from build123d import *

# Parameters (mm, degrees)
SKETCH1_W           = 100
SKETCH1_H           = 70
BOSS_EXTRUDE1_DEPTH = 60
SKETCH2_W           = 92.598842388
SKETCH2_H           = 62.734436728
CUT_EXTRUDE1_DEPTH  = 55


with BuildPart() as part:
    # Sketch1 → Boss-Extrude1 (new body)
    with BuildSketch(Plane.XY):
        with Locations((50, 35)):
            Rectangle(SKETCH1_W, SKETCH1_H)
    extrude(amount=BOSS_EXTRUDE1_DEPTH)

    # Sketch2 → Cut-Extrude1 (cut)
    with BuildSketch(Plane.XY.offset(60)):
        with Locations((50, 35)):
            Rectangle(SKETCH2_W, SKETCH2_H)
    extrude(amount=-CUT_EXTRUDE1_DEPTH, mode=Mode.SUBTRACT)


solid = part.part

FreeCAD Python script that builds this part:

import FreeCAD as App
import Part
import Sketcher

V = App.Vector


def add_polygon(sketch, points):
    """Adds a closed chain of lines whose ends are joined by coincident constraints."""
    first, n = sketch.GeometryCount, len(points)
    for a, b in zip(points, points[1:] + points[:1]):
        sketch.addGeometry(Part.LineSegment(App.Vector(*a, 0), App.Vector(*b, 0)), False)
    for i in range(n):
        sketch.addConstraint(Sketcher.Constraint("Coincident", first + i, 2, first + (i + 1) % n, 1))

doc = App.newDocument("Part")
body = doc.addObject("PartDesign::Body", "Body")

sketch1 = body.newObject("Sketcher::SketchObject", "Sketch")
sketch1.AttachmentSupport = (doc.getObject("XY_Plane"), [""])
sketch1.MapMode = "FlatFace"
add_polygon(sketch1, [(0, 70), (0, 0), (100, 0), (100, 70)])
sketch1.addConstraint([
    Sketcher.Constraint("Vertical", 0),
    Sketcher.Constraint("Horizontal", 1),
    Sketcher.Constraint("Vertical", 2),
    Sketcher.Constraint("Horizontal", 3),
    Sketcher.Constraint("Coincident", 0, 2, -1, 1),
    Sketcher.Constraint("DistanceX", 1, 1, 1, 2, 100.0),
    Sketcher.Constraint("DistanceY", 0, 2, 0, 1, 70.0),
])
pad1 = body.newObject("PartDesign::Pad", "Pad")
pad1.Profile = sketch1
pad1.Length = 60

sketch2 = body.newObject("Sketcher::SketchObject", "Sketch001")
sketch2.AttachmentSupport = (doc.getObject("XY_Plane"), [""])
sketch2.MapMode = "FlatFace"
sketch2.AttachmentOffset = App.Placement(V(0, 0, 60), App.Rotation())
add_polygon(sketch2, [(3.700579, 66.367218), (3.700579, 3.632782), (96.299421, 3.632782), (96.299421, 66.367218)])
sketch2.addConstraint([
    Sketcher.Constraint("Vertical", 0),
    Sketcher.Constraint("Horizontal", 1),
    Sketcher.Constraint("Vertical", 2),
    Sketcher.Constraint("Horizontal", 3),
    Sketcher.Constraint("DistanceX", 1, 1, 1, 2, 92.598842),
    Sketcher.Constraint("DistanceY", 0, 2, 0, 1, 62.734437),
    Sketcher.Constraint("DistanceX", -1, 1, 0, 2, 3.700579),
    Sketcher.Constraint("DistanceY", -1, 1, 0, 2, 3.632782),
])
pocket1 = body.newObject("PartDesign::Pocket", "Pocket")
pocket1.Profile = sketch2
pocket1.Length = 55

doc.recompute()
